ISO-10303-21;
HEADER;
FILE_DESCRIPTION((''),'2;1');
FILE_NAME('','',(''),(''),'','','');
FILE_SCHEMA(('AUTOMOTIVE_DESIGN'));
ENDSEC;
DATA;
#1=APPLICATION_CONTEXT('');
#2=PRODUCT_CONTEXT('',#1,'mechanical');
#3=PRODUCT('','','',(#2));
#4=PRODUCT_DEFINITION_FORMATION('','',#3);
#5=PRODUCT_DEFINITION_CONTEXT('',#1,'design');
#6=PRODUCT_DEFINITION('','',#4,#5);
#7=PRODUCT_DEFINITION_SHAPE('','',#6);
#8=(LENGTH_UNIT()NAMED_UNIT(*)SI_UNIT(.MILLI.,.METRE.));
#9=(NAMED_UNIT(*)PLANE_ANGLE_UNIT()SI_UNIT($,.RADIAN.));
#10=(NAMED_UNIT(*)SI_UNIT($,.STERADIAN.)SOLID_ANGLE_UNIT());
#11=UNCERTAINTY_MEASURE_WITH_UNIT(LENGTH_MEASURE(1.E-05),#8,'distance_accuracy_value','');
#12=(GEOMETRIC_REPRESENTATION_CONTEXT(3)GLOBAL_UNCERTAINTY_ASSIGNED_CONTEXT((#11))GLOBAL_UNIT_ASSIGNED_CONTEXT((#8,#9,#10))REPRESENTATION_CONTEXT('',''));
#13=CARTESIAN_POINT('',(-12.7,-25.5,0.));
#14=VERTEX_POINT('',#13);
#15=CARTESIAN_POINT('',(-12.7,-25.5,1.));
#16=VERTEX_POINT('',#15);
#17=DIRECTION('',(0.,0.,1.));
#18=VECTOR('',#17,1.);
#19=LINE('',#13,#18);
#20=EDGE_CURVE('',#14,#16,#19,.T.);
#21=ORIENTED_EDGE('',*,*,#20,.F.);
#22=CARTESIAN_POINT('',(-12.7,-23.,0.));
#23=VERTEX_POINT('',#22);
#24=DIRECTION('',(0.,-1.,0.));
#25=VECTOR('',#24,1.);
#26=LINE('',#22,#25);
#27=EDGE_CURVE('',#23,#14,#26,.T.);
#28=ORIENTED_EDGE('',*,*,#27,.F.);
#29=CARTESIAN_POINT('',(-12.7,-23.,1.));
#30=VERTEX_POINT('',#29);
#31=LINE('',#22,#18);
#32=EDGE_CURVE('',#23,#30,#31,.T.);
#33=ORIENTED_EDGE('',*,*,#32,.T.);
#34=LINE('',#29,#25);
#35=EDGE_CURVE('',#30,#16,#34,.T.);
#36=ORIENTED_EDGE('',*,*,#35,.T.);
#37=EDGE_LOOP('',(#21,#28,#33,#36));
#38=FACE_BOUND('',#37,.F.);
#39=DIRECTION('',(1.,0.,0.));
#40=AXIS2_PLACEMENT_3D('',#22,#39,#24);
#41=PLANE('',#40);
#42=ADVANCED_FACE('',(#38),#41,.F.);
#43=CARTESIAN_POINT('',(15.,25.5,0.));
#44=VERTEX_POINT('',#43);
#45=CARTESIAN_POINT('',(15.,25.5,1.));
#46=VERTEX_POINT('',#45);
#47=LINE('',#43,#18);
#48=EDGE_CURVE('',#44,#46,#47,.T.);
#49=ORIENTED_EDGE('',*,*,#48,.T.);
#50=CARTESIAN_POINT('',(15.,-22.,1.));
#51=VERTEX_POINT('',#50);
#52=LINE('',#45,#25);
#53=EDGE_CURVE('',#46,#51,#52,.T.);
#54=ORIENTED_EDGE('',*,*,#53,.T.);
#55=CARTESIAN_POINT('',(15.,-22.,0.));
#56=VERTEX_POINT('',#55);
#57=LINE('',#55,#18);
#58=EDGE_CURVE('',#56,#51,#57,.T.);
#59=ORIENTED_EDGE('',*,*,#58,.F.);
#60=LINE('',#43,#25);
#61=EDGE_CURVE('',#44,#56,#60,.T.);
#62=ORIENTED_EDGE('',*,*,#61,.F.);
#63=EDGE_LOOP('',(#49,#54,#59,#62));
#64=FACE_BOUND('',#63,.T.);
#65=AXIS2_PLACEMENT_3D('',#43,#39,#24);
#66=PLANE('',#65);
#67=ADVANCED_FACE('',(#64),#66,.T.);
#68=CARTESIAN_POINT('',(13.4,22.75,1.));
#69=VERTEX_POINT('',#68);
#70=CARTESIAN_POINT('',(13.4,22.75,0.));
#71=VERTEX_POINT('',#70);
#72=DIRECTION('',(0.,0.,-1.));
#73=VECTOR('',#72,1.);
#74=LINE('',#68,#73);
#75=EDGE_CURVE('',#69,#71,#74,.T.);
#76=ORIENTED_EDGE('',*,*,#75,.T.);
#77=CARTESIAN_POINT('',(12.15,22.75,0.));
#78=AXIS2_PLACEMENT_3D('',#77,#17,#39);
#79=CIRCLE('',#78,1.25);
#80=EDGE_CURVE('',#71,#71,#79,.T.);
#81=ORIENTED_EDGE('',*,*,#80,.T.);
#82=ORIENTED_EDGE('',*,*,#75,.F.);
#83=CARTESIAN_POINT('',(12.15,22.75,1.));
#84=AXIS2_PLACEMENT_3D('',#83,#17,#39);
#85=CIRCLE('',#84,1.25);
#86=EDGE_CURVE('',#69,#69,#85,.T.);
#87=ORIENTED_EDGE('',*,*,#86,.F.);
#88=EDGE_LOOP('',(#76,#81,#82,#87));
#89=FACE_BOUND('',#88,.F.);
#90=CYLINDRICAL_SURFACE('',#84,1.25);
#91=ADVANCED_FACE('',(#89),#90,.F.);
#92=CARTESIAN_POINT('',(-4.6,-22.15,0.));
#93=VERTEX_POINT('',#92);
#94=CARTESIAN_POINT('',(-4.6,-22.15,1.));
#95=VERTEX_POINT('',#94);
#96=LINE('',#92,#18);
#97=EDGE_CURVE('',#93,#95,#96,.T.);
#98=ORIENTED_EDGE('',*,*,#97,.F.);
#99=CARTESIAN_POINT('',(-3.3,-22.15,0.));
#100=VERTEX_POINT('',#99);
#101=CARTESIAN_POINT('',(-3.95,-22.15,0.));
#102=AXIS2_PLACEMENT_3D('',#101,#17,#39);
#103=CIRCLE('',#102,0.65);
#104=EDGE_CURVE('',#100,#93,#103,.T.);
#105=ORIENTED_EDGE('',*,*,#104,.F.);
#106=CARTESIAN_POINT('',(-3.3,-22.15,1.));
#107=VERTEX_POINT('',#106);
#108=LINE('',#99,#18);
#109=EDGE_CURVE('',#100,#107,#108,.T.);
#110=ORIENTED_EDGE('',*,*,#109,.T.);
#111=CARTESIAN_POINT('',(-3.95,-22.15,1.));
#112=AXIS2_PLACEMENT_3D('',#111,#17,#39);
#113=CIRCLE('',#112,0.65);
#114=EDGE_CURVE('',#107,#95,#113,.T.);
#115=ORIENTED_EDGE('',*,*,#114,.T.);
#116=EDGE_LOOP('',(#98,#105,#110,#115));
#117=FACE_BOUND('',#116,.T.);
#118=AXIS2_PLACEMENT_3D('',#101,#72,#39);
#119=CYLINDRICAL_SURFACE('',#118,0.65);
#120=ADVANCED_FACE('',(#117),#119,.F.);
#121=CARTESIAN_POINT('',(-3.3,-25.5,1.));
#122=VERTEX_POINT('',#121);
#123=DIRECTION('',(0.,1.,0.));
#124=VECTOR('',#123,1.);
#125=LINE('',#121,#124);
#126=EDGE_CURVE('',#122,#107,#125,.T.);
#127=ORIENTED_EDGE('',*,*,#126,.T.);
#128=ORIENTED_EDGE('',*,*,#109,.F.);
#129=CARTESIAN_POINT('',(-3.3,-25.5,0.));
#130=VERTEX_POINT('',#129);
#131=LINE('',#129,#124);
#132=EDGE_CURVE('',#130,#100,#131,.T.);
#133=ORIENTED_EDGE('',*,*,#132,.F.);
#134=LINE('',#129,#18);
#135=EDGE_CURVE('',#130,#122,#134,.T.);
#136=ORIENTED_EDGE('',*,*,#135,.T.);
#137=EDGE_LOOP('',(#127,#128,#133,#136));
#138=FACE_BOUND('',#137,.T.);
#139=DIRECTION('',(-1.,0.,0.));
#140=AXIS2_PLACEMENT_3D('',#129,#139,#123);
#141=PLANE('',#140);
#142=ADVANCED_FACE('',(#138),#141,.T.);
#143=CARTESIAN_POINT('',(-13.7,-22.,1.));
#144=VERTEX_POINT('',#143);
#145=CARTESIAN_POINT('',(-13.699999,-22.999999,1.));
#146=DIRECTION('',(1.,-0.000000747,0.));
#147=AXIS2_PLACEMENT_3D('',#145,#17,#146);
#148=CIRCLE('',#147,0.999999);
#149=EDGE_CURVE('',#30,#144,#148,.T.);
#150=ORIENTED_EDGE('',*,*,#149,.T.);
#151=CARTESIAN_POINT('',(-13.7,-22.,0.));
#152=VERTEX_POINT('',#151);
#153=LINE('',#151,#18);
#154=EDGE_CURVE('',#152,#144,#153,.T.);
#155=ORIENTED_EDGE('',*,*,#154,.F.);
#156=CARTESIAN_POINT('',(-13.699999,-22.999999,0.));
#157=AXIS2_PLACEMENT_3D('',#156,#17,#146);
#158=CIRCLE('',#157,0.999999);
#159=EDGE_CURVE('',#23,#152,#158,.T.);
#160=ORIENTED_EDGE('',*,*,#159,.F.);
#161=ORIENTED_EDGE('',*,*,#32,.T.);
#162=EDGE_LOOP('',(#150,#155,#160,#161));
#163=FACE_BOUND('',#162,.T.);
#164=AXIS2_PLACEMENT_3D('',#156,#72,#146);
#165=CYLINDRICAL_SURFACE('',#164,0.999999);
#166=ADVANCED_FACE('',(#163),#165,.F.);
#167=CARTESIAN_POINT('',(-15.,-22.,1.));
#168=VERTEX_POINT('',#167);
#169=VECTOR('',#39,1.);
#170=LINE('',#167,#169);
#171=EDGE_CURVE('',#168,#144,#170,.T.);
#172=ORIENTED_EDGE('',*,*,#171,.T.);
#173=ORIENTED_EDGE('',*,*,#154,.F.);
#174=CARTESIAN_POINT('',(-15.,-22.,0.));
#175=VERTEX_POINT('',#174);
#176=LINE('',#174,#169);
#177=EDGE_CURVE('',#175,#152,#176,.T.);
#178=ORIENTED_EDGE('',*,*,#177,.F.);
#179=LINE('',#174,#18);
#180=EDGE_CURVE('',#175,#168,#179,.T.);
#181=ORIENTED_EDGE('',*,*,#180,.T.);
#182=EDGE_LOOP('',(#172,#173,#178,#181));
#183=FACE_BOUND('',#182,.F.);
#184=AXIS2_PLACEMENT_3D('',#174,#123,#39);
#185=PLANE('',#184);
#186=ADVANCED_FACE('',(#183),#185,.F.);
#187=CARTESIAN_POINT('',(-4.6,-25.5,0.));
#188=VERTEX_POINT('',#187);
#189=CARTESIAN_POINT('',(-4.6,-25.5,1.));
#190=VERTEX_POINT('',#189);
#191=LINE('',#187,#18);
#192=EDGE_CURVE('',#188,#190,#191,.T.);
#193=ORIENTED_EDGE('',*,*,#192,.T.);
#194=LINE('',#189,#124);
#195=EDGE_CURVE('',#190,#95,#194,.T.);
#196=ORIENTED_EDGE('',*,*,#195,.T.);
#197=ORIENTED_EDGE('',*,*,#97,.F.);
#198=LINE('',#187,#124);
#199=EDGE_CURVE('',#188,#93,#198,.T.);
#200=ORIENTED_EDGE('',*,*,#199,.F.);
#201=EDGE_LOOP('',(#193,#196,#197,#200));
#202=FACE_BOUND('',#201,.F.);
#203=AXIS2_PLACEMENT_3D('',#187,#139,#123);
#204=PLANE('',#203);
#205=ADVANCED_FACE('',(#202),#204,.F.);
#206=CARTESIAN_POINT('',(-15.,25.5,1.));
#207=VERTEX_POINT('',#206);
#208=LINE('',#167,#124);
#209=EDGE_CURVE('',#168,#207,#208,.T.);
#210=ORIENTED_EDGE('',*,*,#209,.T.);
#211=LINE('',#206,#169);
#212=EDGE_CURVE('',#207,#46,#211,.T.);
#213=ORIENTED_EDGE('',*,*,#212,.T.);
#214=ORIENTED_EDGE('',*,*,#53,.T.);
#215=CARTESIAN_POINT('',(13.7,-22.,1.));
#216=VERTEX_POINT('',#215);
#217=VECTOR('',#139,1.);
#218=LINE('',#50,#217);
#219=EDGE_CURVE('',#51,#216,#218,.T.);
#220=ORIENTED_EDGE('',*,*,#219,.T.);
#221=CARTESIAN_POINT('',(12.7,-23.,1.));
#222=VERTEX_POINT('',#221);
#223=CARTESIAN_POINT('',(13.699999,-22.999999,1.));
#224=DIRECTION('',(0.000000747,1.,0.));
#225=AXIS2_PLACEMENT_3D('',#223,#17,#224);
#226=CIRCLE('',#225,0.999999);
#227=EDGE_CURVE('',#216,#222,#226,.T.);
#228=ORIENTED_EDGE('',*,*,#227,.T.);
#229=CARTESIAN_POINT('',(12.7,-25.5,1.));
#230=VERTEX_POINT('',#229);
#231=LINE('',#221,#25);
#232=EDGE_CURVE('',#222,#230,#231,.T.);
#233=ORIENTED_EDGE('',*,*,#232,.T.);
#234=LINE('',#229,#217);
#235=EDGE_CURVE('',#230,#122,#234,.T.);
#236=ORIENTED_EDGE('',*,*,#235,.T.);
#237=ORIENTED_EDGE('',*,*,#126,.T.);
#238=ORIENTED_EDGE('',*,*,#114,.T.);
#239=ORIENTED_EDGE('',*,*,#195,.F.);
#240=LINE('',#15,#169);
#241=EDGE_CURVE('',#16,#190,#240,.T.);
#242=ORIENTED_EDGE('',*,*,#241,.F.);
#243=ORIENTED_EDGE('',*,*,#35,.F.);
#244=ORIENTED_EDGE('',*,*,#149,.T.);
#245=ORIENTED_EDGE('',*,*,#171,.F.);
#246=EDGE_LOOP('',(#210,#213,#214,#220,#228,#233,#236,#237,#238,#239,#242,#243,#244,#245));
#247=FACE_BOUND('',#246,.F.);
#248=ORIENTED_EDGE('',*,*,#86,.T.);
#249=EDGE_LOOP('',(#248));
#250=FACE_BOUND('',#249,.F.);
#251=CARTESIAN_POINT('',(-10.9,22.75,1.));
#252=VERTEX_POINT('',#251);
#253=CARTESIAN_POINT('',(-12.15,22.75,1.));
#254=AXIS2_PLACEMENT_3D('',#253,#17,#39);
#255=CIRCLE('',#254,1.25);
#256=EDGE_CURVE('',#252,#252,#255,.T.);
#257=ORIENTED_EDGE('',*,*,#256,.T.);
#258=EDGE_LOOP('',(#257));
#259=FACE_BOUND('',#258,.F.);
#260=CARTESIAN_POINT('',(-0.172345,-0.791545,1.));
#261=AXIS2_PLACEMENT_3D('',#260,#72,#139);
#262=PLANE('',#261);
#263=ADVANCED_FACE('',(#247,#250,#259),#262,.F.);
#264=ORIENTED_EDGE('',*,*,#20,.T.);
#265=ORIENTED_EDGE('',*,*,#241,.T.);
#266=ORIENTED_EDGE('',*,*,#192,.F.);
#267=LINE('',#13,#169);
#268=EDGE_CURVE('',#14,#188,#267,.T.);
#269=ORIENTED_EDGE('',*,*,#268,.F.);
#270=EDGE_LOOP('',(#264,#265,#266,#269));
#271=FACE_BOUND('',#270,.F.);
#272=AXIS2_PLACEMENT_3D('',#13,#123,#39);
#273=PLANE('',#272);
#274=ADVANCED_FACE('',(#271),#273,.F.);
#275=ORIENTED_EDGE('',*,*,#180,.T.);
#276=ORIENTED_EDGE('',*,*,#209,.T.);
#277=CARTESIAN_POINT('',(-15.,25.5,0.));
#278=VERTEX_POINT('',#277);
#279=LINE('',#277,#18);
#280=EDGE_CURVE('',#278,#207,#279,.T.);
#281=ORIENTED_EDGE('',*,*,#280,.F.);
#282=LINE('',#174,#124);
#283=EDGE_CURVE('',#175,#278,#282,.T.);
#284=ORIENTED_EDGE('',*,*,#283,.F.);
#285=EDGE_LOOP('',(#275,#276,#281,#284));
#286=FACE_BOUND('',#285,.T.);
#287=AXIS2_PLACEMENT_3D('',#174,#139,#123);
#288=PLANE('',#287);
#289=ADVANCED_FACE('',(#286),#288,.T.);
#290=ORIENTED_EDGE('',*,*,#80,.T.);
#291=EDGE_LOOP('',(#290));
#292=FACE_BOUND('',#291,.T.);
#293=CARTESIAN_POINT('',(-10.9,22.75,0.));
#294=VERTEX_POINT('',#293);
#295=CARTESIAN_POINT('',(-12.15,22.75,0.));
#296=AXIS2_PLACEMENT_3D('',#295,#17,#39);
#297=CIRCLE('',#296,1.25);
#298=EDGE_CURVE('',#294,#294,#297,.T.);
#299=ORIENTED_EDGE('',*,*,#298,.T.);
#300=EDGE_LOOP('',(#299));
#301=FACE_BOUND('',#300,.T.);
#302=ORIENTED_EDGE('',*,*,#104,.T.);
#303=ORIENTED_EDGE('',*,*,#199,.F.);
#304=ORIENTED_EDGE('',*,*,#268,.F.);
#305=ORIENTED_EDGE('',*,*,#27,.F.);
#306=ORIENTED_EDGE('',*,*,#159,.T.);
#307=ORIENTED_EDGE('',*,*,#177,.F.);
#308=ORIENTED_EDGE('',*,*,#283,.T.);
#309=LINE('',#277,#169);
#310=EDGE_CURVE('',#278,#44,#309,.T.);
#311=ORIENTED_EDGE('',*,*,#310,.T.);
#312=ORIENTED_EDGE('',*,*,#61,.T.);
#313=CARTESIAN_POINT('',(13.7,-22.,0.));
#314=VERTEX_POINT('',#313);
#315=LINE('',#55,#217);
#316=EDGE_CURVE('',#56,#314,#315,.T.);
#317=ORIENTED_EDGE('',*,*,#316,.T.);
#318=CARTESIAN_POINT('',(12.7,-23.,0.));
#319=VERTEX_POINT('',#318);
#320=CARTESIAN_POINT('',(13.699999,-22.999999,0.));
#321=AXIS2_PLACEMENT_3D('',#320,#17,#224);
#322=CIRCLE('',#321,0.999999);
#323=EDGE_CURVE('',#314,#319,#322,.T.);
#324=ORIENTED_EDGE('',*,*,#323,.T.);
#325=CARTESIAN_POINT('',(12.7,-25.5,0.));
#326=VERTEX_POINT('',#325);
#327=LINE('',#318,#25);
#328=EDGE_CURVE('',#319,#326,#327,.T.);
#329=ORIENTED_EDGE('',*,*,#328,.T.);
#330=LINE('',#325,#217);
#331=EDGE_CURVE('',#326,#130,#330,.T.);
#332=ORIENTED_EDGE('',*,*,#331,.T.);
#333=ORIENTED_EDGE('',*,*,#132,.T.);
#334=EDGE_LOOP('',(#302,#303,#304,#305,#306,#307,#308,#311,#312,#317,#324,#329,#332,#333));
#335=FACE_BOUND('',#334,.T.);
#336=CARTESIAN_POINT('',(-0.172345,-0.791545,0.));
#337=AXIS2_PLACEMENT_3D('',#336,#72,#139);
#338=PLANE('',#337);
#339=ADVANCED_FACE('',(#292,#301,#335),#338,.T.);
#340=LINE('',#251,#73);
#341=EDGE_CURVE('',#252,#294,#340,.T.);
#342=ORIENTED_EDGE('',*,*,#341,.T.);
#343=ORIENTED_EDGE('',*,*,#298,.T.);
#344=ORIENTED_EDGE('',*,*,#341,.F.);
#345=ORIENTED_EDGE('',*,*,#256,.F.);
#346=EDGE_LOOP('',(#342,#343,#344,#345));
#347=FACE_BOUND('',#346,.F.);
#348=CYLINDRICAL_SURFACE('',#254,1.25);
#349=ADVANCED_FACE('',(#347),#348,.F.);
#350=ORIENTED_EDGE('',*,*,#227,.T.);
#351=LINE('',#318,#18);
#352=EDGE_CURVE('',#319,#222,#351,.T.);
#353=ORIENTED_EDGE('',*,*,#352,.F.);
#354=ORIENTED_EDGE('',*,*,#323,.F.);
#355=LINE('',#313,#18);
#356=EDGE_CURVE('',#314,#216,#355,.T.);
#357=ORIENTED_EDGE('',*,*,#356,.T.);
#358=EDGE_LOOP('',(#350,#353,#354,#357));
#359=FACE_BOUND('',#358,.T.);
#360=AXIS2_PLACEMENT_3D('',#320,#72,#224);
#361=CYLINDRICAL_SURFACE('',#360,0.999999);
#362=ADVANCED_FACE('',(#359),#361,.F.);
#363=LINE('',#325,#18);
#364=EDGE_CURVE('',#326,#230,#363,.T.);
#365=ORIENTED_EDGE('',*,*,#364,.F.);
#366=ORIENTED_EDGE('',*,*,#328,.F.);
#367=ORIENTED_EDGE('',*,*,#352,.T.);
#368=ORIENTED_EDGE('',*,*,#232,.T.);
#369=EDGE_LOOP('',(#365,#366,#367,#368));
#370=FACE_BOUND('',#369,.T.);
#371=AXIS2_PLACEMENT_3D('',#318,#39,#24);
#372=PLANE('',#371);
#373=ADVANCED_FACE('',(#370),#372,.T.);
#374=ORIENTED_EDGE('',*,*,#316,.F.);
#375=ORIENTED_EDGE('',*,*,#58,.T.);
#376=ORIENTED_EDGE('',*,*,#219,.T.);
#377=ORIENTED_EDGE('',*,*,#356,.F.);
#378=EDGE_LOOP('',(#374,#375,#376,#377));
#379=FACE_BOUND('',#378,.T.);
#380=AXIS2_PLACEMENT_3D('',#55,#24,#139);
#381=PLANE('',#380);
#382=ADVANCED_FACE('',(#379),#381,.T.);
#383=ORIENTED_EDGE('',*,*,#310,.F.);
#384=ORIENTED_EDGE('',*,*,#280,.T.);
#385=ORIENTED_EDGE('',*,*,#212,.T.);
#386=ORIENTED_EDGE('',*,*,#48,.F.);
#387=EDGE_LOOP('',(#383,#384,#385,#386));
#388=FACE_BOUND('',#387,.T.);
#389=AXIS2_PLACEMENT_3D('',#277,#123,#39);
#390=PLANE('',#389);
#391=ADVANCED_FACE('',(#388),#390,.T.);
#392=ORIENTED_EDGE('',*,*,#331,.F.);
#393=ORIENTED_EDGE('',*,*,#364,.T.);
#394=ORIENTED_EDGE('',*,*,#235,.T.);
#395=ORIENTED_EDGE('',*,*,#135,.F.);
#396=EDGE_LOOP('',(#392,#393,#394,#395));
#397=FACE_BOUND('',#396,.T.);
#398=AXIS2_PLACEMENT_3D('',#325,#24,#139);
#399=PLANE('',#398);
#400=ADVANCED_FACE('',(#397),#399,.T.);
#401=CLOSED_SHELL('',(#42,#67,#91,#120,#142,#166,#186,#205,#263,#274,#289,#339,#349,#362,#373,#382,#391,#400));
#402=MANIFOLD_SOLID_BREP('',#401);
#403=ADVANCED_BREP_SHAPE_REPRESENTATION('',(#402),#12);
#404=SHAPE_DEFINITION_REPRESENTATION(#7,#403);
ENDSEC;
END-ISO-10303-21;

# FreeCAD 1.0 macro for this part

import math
import FreeCAD as App
import Part
import Sketcher

V = App.Vector

doc = App.newDocument("Part")
body = doc.addObject("PartDesign::Body", "Body")

# Sketch on XY plane
sketch1 = body.newObject("Sketcher::SketchObject", "Sketch")
sketch1.AttachmentSupport = (doc.getObject("XY_Plane"), [""])
sketch1.MapMode = "FlatFace"
sketch1.addGeometry(Part.LineSegment(V(-15, 25.5, 0), V(-15, -22, 0)), False)
sketch1.addGeometry(Part.LineSegment(V(-15, -22, 0), V(-13.7, -22, 0)), False)
sketch1.addGeometry(Part.ArcOfCircle(Part.Circle(V(-13.699999, -22.999999, 0), V(0, 0, 1), 0.999999), math.radians(-0.000043), math.radians(90.000043)), False)
sketch1.addGeometry(Part.LineSegment(V(-12.7, -23, 0), V(-12.7, -25.5, 0)), False)
sketch1.addGeometry(Part.LineSegment(V(-12.7, -25.5, 0), V(-4.6, -25.5, 0)), False)
sketch1.addGeometry(Part.LineSegment(V(-4.6, -25.5, 0), V(-4.6, -22.15, 0)), False)
sketch1.addGeometry(Part.ArcOfCircle(Part.Circle(V(-3.95, -22.15, 0), V(0, 0, 1), 0.65), math.radians(0), math.radians(180)), False)
sketch1.addGeometry(Part.LineSegment(V(-3.3, -22.15, 0), V(-3.3, -25.5, 0)), False)
sketch1.addGeometry(Part.LineSegment(V(-3.3, -25.5, 0), V(12.7, -25.5, 0)), False)
sketch1.addGeometry(Part.LineSegment(V(12.7, -25.5, 0), V(12.7, -23, 0)), False)
sketch1.addGeometry(Part.ArcOfCircle(Part.Circle(V(13.699999, -22.999999, 0), V(0, 0, 1), 0.999999), math.radians(89.999957), math.radians(180.000043)), False)
sketch1.addGeometry(Part.LineSegment(V(13.7, -22, 0), V(15, -22, 0)), False)
sketch1.addGeometry(Part.LineSegment(V(15, -22, 0), V(15, 25.5, 0)), False)
sketch1.addGeometry(Part.LineSegment(V(15, 25.5, 0), V(-15, 25.5, 0)), False)
sketch1.addConstraint(Sketcher.Constraint("Coincident", 0, 2, 1, 1))
sketch1.addConstraint(Sketcher.Constraint("Tangent", 1, 2, 2, 2))
sketch1.addConstraint(Sketcher.Constraint("Tangent", 2, 1, 3, 1))
sketch1.addConstraint(Sketcher.Constraint("Coincident", 3, 2, 4, 1))
sketch1.addConstraint(Sketcher.Constraint("Coincident", 4, 2, 5, 1))
sketch1.addConstraint(Sketcher.Constraint("Tangent", 5, 2, 6, 2))
sketch1.addConstraint(Sketcher.Constraint("Tangent", 6, 1, 7, 1))
sketch1.addConstraint(Sketcher.Constraint("Coincident", 7, 2, 8, 1))
sketch1.addConstraint(Sketcher.Constraint("Coincident", 8, 2, 9, 1))
sketch1.addConstraint(Sketcher.Constraint("Tangent", 9, 2, 10, 2))
sketch1.addConstraint(Sketcher.Constraint("Tangent", 10, 1, 11, 1))
sketch1.addConstraint(Sketcher.Constraint("Coincident", 11, 2, 12, 1))
sketch1.addConstraint(Sketcher.Constraint("Coincident", 12, 2, 13, 1))
sketch1.addConstraint(Sketcher.Constraint("Coincident", 13, 2, 0, 1))
sketch1.addConstraint(Sketcher.Constraint("Vertical", 0))
sketch1.addConstraint(Sketcher.Constraint("Horizontal", 1))
sketch1.addConstraint(Sketcher.Constraint("Vertical", 3))
sketch1.addConstraint(Sketcher.Constraint("Horizontal", 4))
sketch1.addConstraint(Sketcher.Constraint("Vertical", 5))
sketch1.addConstraint(Sketcher.Constraint("Vertical", 7))
sketch1.addConstraint(Sketcher.Constraint("Horizontal", 8))
sketch1.addConstraint(Sketcher.Constraint("Vertical", 9))
sketch1.addConstraint(Sketcher.Constraint("Horizontal", 11))
sketch1.addConstraint(Sketcher.Constraint("Vertical", 12))
sketch1.addConstraint(Sketcher.Constraint("Horizontal", 13))
sketch1.addConstraint(Sketcher.Constraint("Equal", 2, 10))
sketch1.addConstraint(Sketcher.Constraint("Symmetric", 2, 3, 10, 3, -2))
sketch1.addConstraint(Sketcher.Constraint("Horizontal", 4, 2, 7, 2))
sketch1.addConstraint(Sketcher.Constraint("Equal", 1, 11))
sketch1.addConstraint(Sketcher.Constraint("Radius", 2, 0.999999))
sketch1.addConstraint(Sketcher.Constraint("DistanceX", 8, 1, 8, 2, 16.0))
sketch1.addConstraint(Sketcher.Constraint("DistanceX", 13, 2, 13, 1, 30.0))
sketch1.addConstraint(Sketcher.Constraint("Radius", 6, 0.65))
sketch1.addConstraint(Sketcher.Constraint("DistanceX", 1, 1, 1, 2, 1.3))
sketch1.addConstraint(Sketcher.Constraint("DistanceY", 0, 2, 0, 1, 47.5))
sketch1.addConstraint(Sketcher.Constraint("DistanceY", 3, 2, 3, 1, 2.5))
sketch1.addConstraint(Sketcher.Constraint("DistanceY", 2, 3, -1, 1, 22.999999))
sketch1.addConstraint(Sketcher.Constraint("DistanceY", 5, 1, 5, 2, 3.35))
pad1 = body.newObject("PartDesign::Pad", "Pad")
pad1.Profile = sketch1
pad1.Length = 1

# Sketch on XY plane
sketch2 = body.newObject("Sketcher::SketchObject", "Sketch001")
sketch2.AttachmentSupport = (doc.getObject("XY_Plane"), [""])
sketch2.MapMode = "FlatFace"
sketch2.AttachmentOffset = App.Placement(V(0, 0, 1), App.Rotation())
sketch2.addGeometry(Part.Circle(V(-12.15, 22.75, 0), V(0, 0, 1), 1.25), False)
sketch2.addGeometry(Part.Circle(V(12.15, 22.75, 0), V(0, 0, 1), 1.25), False)
sketch2.addConstraint(Sketcher.Constraint("Equal", 0, 1))
sketch2.addConstraint(Sketcher.Constraint("Symmetric", 0, 3, 1, 3, -2))
sketch2.addConstraint(Sketcher.Constraint("Diameter", 0, 2.5))
sketch2.addConstraint(Sketcher.Constraint("DistanceX", 0, 3, 1, 3, 24.3))
sketch2.addConstraint(Sketcher.Constraint("DistanceY", -1, 1, 0, 3, 22.75))
pocket1 = body.newObject("PartDesign::Pocket", "Pocket")
pocket1.Profile = sketch2
pocket1.Type = "ThroughAll"

doc.recompute()
